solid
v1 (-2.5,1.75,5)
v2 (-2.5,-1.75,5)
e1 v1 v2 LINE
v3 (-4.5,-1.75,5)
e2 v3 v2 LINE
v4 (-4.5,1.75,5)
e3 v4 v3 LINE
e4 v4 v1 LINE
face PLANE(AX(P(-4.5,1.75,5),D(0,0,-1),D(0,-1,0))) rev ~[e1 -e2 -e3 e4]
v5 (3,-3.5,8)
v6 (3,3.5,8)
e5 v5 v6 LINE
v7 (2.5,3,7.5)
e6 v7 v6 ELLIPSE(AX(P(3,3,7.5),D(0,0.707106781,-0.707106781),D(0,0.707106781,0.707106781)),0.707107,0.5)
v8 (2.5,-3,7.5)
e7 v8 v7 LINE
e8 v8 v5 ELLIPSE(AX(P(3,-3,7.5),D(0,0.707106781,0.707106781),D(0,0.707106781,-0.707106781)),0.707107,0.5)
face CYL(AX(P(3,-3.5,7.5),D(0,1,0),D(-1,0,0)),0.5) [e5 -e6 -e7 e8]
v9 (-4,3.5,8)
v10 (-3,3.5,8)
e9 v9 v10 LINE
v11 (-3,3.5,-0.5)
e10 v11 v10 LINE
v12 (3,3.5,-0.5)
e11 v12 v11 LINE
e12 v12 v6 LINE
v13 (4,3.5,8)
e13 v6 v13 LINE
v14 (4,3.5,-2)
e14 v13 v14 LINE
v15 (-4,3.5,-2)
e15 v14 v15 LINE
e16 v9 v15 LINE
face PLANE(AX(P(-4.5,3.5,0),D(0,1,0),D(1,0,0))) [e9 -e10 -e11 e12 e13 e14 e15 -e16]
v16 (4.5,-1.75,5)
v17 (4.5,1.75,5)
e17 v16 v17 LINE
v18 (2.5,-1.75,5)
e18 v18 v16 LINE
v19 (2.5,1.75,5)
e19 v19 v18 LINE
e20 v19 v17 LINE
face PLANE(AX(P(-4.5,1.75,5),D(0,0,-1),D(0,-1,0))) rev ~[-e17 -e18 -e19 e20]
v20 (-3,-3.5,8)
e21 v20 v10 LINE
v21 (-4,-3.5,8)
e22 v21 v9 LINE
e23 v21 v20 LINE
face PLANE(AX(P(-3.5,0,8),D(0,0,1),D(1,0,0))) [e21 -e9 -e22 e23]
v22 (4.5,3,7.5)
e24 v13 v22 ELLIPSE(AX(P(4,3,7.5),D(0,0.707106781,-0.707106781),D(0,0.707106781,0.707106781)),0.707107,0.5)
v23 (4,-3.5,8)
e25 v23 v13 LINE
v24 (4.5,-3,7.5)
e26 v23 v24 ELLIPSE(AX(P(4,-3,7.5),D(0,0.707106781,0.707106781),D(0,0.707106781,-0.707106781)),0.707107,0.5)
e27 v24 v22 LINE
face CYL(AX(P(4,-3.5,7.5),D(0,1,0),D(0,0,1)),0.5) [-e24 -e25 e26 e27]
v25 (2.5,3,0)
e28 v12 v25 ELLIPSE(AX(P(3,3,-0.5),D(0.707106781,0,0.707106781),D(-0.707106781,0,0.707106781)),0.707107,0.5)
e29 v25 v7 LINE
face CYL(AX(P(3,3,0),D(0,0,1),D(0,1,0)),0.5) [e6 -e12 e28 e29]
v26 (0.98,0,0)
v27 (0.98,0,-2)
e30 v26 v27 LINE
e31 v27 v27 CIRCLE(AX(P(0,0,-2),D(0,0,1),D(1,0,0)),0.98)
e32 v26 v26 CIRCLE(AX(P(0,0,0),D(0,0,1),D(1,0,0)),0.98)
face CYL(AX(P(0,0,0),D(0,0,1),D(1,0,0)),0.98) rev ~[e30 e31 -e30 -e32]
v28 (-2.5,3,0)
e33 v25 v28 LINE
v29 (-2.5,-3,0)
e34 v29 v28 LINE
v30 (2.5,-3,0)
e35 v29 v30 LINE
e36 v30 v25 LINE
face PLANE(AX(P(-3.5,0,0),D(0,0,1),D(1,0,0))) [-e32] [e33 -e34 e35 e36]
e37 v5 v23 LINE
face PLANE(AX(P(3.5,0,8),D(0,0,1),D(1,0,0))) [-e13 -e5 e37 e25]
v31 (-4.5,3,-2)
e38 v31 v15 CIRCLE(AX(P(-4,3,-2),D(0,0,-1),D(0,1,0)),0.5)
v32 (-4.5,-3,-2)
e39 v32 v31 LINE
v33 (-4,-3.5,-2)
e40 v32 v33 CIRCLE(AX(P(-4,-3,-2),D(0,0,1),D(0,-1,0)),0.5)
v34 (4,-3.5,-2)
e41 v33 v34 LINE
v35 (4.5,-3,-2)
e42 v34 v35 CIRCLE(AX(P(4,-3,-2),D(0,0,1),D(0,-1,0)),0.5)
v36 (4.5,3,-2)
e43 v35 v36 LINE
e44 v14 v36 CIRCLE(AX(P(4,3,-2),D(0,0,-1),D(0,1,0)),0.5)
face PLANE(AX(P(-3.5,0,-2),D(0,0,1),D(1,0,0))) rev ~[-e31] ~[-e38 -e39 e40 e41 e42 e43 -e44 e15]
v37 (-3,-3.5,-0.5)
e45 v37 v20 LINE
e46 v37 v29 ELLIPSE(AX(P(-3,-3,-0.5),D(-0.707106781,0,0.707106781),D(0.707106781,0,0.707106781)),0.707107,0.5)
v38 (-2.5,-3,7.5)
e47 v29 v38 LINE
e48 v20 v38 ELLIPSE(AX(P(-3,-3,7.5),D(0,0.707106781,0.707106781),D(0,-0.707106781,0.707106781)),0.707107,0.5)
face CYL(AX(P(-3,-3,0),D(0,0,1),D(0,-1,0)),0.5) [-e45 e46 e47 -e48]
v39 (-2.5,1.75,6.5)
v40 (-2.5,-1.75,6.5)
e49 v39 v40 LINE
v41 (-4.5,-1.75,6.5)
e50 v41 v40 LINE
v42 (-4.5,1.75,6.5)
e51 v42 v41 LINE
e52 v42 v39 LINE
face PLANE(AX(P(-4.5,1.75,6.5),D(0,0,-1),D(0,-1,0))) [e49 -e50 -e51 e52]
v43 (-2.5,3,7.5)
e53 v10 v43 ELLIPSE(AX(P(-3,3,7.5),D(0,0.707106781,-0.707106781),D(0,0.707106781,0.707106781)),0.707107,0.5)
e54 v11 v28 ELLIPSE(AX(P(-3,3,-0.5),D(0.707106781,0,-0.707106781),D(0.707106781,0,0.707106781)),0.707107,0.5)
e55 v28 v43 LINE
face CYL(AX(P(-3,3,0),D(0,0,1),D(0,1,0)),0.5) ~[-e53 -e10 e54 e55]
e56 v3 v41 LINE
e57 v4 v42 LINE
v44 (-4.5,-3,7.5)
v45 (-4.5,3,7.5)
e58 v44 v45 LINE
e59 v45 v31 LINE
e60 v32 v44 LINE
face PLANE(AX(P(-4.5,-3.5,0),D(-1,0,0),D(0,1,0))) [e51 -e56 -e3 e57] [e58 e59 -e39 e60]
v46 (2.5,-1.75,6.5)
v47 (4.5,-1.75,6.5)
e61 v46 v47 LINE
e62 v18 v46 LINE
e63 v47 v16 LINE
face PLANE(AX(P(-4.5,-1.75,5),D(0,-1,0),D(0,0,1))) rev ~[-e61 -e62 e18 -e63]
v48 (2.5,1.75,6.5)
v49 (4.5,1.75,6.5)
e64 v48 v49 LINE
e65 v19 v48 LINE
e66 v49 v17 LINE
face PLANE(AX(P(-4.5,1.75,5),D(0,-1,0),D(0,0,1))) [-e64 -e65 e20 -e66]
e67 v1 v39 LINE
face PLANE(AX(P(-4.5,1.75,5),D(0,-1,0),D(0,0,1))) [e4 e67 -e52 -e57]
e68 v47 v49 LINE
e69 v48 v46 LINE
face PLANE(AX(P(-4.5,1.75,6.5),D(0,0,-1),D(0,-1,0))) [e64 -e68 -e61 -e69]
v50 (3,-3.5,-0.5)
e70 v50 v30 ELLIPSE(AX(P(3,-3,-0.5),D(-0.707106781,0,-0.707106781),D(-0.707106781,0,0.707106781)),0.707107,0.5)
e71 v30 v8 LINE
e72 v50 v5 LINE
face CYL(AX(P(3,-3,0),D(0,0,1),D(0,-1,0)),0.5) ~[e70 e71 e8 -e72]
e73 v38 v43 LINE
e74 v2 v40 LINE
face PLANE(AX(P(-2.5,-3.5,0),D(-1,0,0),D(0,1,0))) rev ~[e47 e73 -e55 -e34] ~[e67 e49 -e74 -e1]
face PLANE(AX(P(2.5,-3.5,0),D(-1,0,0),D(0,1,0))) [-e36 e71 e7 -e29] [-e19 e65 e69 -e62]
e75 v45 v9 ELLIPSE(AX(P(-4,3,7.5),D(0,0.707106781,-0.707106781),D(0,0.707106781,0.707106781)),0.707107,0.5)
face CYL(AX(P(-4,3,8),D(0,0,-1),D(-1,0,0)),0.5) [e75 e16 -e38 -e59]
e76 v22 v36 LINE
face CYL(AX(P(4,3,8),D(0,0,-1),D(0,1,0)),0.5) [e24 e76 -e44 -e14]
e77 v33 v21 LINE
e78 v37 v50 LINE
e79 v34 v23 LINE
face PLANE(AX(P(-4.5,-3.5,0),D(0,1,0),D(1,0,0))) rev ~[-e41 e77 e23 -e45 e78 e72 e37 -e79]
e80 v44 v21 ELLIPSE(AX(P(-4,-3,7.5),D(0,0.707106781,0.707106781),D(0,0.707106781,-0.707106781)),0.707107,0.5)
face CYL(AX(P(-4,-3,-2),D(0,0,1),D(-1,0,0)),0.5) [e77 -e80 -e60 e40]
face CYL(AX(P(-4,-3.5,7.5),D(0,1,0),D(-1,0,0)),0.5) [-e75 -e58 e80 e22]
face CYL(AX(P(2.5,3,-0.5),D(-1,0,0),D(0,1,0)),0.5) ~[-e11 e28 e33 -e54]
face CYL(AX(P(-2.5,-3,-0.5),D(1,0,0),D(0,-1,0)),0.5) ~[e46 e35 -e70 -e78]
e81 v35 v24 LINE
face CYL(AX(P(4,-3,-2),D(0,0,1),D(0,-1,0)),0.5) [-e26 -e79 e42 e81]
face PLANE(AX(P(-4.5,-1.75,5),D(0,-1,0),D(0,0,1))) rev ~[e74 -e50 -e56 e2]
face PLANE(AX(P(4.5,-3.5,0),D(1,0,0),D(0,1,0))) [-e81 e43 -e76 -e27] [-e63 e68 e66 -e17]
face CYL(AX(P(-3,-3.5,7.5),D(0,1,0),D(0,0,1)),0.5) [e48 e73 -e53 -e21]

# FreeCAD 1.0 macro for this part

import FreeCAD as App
import Part
import Sketcher

V = App.Vector


def edges_at(feature, points):
    """Names of the edges that pass closest to the given points."""
    edges = feature.Shape.Edges
    near = lambda p: min(range(len(edges)), key=lambda i: edges[i].distToShape(Part.Vertex(*p))[0])
    return sorted({f"Edge{near(p) + 1}" for p in points})


def add_polygon(sketch, points):
    """Adds a closed chain of lines whose ends are joined by coincident constraints."""
    first, n = sketch.GeometryCount, len(points)
    for a, b in zip(points, points[1:] + points[:1]):
        sketch.addGeometry(Part.LineSegment(App.Vector(*a, 0), App.Vector(*b, 0)), False)
    for i in range(n):
        sketch.addConstraint(Sketcher.Constraint("Coincident", first + i, 2, first + (i + 1) % n, 1))

doc = App.newDocument("Part")
body = doc.addObject("PartDesign::Body", "Body")

# Sketch on XY plane
sketch1 = body.newObject("Sketcher::SketchObject", "Sketch")
sketch1.AttachmentSupport = (doc.getObject("XY_Plane"), [""])
sketch1.MapMode = "FlatFace"
add_polygon(sketch1, [(-4.5, 3.5), (-4.5, -3.5), (4.5, -3.5), (4.5, 3.5)])  # lines 0-3
sketch1.addGeometry(Part.Circle(V(0, 0, 0), V(0, 0, 1), 1), False)  # 4
sketch1.addConstraint([
    Sketcher.Constraint("Vertical", 0),
    Sketcher.Constraint("Horizontal", 1),
    Sketcher.Constraint("Vertical", 2),
    Sketcher.Constraint("Horizontal", 3),
    Sketcher.Constraint("Coincident", 4, 3, -1, 1),
    Sketcher.Constraint("Symmetric", 0, 2, 2, 2, -1, 1),
    Sketcher.Constraint("Diameter", 4, 1.96),
    Sketcher.Constraint("DistanceX", 1, 1, 1, 2, 9.0),
    Sketcher.Constraint("DistanceY", 0, 2, 0, 1, 7.0),
])
pad1 = body.newObject("PartDesign::Pad", "Pad")
pad1.Profile = sketch1
pad1.Length = 2
pad1.Reversed = True

# Sketch on XY plane
sketch2 = body.newObject("Sketcher::SketchObject", "Sketch001")
sketch2.AttachmentSupport = (doc.getObject("XY_Plane"), [""])
sketch2.MapMode = "FlatFace"
add_polygon(sketch2, [(-4.5, 3.5), (-4.5, -3.5), (-2.5, -3.5), (-2.5, 3.5)])  # lines 0-3
add_polygon(sketch2, [(2.5, 3.5), (2.5, -3.5), (4.5, -3.5), (4.5, 3.5)])  # lines 4-7
sketch2.addConstraint([
    Sketcher.Constraint("Vertical", 0),
    Sketcher.Constraint("Horizontal", 1),
    Sketcher.Constraint("Vertical", 2),
    Sketcher.Constraint("Horizontal", 3),
    Sketcher.Constraint("Vertical", 4),
    Sketcher.Constraint("Horizontal", 5),
    Sketcher.Constraint("Vertical", 6),
    Sketcher.Constraint("Horizontal", 7),
    Sketcher.Constraint("Symmetric", 2, 2, 4, 2, -1, 1),
    Sketcher.Constraint("Symmetric", 0, 2, 6, 2, -1, 1),
    Sketcher.Constraint("Horizontal", 1, 2, 4, 2),
    Sketcher.Constraint("DistanceX", 1, 1, 1, 2, 2.0),
    Sketcher.Constraint("DistanceY", 0, 2, 0, 1, 7.0),
    Sketcher.Constraint("DistanceX", 1, 2, 4, 2, 5.0),
])
pad2 = body.newObject("PartDesign::Pad", "Pad001")
pad2.Profile = sketch2
pad2.Length = 8

# Sketch on YZ plane
sketch3 = body.newObject("Sketcher::SketchObject", "Sketch002")
sketch3.AttachmentSupport = (doc.getObject("YZ_Plane"), [""])
sketch3.MapMode = "FlatFace"
sketch3.AttachmentOffset = App.Placement(V(0, 0, -4.5), App.Rotation())
add_polygon(sketch3, [(1.8, 6.5), (1.8, 5), (-1.8, 5), (-1.8, 6.5)])  # lines 0-3
sketch3.addConstraint([
    Sketcher.Constraint("Vertical", 0),
    Sketcher.Constraint("Horizontal", 1),
    Sketcher.Constraint("Vertical", 2),
    Sketcher.Constraint("Horizontal", 3),
    Sketcher.Constraint("DistanceX", 1, 2, 1, 1, 3.5),
    Sketcher.Constraint("DistanceY", 0, 2, 0, 1, 1.5),
    Sketcher.Constraint("DistanceY", -1, 1, 0, 2, 5.0),
    Sketcher.Constraint("DistanceX", -1, 1, 0, 2, 1.75),
])
pocket1 = body.newObject("PartDesign::Pocket", "Pocket")
pocket1.Profile = sketch3
pocket1.Length = 25
pocket1.Reversed = True
doc.recompute()

fillet = body.newObject("PartDesign::Fillet", "Fillet")
fillet.Base = (pocket1, edges_at(pocket1, [
    (-2.5, -3.5, 4),
    (-4.5, 0, 8),
    (-2.5, 0, 8),
    (2.5, 0, 8),
    (4.5, 0, 8),
    (2.5, -3.5, 4),
    (4.5, -3.5, 3),
    (-4.5, -3.5, 3),
    (-4.5, 3.5, 3),
    (2.5, 3.5, 4),
    (4.5, 3.5, 3),
    (-2.5, 3.5, 4),
    (0, -3.5, 0),
    (0, 3.5, 0),
]))
fillet.Radius = 0.5

doc.recompute()
